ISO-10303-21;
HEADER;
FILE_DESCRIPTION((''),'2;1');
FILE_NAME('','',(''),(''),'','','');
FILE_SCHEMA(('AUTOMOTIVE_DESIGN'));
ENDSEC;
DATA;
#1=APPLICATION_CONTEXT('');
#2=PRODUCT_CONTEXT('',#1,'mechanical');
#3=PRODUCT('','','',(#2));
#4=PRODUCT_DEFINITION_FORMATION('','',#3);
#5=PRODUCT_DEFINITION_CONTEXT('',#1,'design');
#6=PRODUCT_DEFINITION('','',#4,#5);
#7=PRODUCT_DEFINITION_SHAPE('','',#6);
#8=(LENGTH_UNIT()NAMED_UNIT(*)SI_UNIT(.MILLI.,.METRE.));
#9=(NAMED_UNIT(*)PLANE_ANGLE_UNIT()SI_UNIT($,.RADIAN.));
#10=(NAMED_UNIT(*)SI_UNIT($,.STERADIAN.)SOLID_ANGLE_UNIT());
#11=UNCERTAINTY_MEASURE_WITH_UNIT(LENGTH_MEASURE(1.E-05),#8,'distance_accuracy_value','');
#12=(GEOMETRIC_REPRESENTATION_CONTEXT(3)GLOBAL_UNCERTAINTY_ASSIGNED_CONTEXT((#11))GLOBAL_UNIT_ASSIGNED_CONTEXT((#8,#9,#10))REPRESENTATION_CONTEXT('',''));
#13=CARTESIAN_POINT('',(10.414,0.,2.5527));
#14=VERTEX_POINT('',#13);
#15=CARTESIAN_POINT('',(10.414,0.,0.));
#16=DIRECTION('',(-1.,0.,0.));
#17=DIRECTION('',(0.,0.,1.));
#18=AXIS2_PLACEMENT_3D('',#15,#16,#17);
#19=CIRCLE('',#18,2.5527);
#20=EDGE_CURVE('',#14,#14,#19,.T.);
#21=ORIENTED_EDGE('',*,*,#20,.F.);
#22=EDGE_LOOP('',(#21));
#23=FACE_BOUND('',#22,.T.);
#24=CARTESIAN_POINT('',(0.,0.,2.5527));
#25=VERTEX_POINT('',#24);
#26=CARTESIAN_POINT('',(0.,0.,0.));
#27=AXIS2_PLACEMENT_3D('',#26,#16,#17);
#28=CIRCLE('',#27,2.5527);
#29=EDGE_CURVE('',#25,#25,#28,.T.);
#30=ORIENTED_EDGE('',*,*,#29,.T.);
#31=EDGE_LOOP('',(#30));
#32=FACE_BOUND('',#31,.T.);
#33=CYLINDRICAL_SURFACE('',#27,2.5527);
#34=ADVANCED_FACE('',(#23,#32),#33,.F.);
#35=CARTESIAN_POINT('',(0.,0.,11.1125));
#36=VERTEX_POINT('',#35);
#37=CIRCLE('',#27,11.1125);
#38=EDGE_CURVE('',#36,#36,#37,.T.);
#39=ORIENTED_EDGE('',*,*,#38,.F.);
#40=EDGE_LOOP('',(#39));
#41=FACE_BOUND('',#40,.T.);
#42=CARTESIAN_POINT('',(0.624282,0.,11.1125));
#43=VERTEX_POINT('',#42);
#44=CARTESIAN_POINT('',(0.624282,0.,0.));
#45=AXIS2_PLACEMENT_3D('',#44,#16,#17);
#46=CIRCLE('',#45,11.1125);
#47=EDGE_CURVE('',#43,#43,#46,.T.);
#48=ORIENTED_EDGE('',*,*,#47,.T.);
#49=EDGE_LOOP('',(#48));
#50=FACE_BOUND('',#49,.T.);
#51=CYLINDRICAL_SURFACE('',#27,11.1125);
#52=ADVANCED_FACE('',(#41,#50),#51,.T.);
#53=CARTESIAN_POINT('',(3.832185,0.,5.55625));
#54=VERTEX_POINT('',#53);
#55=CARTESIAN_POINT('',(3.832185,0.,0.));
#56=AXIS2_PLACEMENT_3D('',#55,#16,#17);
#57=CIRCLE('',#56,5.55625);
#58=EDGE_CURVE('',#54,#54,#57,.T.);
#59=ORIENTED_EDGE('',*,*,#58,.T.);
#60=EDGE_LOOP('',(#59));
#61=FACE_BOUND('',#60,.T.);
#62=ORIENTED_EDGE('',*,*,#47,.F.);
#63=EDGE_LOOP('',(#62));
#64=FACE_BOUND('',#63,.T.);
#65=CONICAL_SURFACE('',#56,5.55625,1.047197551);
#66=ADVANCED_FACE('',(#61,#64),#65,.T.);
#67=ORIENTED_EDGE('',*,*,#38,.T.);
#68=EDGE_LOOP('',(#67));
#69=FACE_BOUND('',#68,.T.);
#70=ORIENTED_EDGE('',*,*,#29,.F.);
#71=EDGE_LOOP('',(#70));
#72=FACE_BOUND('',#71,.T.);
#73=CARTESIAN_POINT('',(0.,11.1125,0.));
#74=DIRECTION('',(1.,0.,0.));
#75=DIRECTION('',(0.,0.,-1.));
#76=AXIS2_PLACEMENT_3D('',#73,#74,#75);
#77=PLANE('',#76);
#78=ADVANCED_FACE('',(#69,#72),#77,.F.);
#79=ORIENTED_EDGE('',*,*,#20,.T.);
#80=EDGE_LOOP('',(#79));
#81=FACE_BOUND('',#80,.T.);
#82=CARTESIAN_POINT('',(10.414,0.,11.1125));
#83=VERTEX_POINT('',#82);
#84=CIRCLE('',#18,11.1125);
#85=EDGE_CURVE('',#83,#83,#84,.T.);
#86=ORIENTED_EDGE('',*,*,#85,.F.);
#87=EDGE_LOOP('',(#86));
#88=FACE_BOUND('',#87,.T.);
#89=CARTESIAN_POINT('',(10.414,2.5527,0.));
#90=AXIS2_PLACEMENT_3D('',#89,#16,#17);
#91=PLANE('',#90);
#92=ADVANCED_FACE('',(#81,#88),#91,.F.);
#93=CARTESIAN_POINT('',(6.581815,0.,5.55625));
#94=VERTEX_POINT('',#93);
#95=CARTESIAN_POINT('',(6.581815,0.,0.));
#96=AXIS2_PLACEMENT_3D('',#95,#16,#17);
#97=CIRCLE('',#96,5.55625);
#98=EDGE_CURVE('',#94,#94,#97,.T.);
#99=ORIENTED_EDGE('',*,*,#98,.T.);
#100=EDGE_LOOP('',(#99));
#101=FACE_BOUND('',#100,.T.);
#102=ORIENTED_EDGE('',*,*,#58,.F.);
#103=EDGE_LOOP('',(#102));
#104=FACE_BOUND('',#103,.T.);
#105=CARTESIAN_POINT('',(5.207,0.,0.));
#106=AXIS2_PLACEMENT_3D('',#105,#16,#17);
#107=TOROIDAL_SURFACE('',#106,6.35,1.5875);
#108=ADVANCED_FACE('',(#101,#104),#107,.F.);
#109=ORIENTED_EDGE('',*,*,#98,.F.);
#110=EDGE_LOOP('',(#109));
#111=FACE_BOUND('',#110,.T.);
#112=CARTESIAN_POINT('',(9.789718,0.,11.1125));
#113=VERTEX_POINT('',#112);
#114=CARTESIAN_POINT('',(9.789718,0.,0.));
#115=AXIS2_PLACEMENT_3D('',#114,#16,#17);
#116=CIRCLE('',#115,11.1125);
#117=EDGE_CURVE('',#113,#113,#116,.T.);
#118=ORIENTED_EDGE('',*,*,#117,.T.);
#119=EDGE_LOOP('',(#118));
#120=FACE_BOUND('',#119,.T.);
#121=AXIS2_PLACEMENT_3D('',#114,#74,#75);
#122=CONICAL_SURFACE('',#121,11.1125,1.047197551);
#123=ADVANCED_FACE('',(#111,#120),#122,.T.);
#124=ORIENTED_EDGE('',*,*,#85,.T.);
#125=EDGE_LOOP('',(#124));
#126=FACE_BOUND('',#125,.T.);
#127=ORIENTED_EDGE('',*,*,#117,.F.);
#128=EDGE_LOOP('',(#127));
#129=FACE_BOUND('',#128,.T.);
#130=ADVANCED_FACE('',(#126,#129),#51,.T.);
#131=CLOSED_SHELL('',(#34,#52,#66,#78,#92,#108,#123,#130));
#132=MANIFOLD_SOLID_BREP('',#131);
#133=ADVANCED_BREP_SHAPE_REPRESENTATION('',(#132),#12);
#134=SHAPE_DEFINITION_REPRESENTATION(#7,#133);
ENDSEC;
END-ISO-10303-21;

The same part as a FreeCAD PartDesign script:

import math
import FreeCAD as App
import Part
import Sketcher

V = App.Vector
Q = App.Units.Quantity

doc = App.newDocument("Part")
body = doc.addObject("PartDesign::Body", "Body")

# Sketch on XY plane
sketch1 = body.newObject("Sketcher::SketchObject", "Sketch")
sketch1.AttachmentSupport = (doc.getObject("XY_Plane"), [""])
sketch1.MapMode = "FlatFace"
sketch1.addGeometry(Part.LineSegment(V(0, 2.6, 0), V(10.4, 2.6, 0)), False)
sketch1.addGeometry(Part.LineSegment(V(10.4, 2.6, 0), V(10.4, 11.1, 0)), False)
sketch1.addGeometry(Part.LineSegment(V(10.4, 11.1, 0), V(9.8, 11.1, 0)), False)
sketch1.addGeometry(Part.LineSegment(V(9.8, 11.1, 0), V(6.6, 5.6, 0)), False)
sketch1.addGeometry(Part.ArcOfCircle(Part.Circle(V(5.2, 6.4, 0), V(0, 0, 1), 1.6), math.radians(-150), math.radians(-30)), False)
sketch1.addGeometry(Part.LineSegment(V(3.8, 5.6, 0), V(0.6, 11.1, 0)), False)
sketch1.addGeometry(Part.LineSegment(V(0.6, 11.1, 0), V(0, 11.1, 0)), False)
sketch1.addGeometry(Part.LineSegment(V(0, 11.1, 0), V(0, 2.6, 0)), False)
sketch1.addConstraint(Sketcher.Constraint("Coincident", 0, 2, 1, 1))
sketch1.addConstraint(Sketcher.Constraint("Coincident", 1, 2, 2, 1))
sketch1.addConstraint(Sketcher.Constraint("Coincident", 2, 2, 3, 1))
sketch1.addConstraint(Sketcher.Constraint("Tangent", 3, 2, 4, 2))
sketch1.addConstraint(Sketcher.Constraint("Tangent", 4, 1, 5, 1))
sketch1.addConstraint(Sketcher.Constraint("Coincident", 5, 2, 6, 1))
sketch1.addConstraint(Sketcher.Constraint("Coincident", 6, 2, 7, 1))
sketch1.addConstraint(Sketcher.Constraint("Coincident", 7, 2, 0, 1))
sketch1.addConstraint(Sketcher.Constraint("Horizontal", 0))
sketch1.addConstraint(Sketcher.Constraint("Vertical", 1))
sketch1.addConstraint(Sketcher.Constraint("Horizontal", 2))
sketch1.addConstraint(Sketcher.Constraint("Horizontal", 6))
sketch1.addConstraint(Sketcher.Constraint("Vertical", 7))
sketch1.addConstraint(Sketcher.Constraint("PointOnObject", 6, 2, -2))
sketch1.addConstraint(Sketcher.Constraint("Horizontal", 3, 2, 4, 1))
sketch1.addConstraint(Sketcher.Constraint("Horizontal", 2, 2, 5, 2))
sketch1.addConstraint(Sketcher.Constraint("Equal", 2, 6))
sketch1.addConstraint(Sketcher.Constraint("Angle", 3, Q("-120 deg")))
sketch1.addConstraint(Sketcher.Constraint("Radius", 4, Q("0.0625 in")))
sketch1.addConstraint(Sketcher.Constraint("DistanceX", 0, 1, 0, 2, Q("0.41 in")))
sketch1.addConstraint(Sketcher.Constraint("DistanceY", 1, 1, 1, 2, Q("0.337 in")))
sketch1.addConstraint(Sketcher.Constraint("DistanceY", -1, 1, 4, 3, Q("0.25 in")))
sketch1.addConstraint(Sketcher.Constraint("DistanceY", -1, 1, 1, 2, Q("0.4375 in")))
revolution = body.newObject("PartDesign::Revolution", "Revolution")
revolution.Profile = sketch1
revolution.ReferenceAxis = (sketch1, ["H_Axis"])
revolution.Angle = 360

doc.recompute()
